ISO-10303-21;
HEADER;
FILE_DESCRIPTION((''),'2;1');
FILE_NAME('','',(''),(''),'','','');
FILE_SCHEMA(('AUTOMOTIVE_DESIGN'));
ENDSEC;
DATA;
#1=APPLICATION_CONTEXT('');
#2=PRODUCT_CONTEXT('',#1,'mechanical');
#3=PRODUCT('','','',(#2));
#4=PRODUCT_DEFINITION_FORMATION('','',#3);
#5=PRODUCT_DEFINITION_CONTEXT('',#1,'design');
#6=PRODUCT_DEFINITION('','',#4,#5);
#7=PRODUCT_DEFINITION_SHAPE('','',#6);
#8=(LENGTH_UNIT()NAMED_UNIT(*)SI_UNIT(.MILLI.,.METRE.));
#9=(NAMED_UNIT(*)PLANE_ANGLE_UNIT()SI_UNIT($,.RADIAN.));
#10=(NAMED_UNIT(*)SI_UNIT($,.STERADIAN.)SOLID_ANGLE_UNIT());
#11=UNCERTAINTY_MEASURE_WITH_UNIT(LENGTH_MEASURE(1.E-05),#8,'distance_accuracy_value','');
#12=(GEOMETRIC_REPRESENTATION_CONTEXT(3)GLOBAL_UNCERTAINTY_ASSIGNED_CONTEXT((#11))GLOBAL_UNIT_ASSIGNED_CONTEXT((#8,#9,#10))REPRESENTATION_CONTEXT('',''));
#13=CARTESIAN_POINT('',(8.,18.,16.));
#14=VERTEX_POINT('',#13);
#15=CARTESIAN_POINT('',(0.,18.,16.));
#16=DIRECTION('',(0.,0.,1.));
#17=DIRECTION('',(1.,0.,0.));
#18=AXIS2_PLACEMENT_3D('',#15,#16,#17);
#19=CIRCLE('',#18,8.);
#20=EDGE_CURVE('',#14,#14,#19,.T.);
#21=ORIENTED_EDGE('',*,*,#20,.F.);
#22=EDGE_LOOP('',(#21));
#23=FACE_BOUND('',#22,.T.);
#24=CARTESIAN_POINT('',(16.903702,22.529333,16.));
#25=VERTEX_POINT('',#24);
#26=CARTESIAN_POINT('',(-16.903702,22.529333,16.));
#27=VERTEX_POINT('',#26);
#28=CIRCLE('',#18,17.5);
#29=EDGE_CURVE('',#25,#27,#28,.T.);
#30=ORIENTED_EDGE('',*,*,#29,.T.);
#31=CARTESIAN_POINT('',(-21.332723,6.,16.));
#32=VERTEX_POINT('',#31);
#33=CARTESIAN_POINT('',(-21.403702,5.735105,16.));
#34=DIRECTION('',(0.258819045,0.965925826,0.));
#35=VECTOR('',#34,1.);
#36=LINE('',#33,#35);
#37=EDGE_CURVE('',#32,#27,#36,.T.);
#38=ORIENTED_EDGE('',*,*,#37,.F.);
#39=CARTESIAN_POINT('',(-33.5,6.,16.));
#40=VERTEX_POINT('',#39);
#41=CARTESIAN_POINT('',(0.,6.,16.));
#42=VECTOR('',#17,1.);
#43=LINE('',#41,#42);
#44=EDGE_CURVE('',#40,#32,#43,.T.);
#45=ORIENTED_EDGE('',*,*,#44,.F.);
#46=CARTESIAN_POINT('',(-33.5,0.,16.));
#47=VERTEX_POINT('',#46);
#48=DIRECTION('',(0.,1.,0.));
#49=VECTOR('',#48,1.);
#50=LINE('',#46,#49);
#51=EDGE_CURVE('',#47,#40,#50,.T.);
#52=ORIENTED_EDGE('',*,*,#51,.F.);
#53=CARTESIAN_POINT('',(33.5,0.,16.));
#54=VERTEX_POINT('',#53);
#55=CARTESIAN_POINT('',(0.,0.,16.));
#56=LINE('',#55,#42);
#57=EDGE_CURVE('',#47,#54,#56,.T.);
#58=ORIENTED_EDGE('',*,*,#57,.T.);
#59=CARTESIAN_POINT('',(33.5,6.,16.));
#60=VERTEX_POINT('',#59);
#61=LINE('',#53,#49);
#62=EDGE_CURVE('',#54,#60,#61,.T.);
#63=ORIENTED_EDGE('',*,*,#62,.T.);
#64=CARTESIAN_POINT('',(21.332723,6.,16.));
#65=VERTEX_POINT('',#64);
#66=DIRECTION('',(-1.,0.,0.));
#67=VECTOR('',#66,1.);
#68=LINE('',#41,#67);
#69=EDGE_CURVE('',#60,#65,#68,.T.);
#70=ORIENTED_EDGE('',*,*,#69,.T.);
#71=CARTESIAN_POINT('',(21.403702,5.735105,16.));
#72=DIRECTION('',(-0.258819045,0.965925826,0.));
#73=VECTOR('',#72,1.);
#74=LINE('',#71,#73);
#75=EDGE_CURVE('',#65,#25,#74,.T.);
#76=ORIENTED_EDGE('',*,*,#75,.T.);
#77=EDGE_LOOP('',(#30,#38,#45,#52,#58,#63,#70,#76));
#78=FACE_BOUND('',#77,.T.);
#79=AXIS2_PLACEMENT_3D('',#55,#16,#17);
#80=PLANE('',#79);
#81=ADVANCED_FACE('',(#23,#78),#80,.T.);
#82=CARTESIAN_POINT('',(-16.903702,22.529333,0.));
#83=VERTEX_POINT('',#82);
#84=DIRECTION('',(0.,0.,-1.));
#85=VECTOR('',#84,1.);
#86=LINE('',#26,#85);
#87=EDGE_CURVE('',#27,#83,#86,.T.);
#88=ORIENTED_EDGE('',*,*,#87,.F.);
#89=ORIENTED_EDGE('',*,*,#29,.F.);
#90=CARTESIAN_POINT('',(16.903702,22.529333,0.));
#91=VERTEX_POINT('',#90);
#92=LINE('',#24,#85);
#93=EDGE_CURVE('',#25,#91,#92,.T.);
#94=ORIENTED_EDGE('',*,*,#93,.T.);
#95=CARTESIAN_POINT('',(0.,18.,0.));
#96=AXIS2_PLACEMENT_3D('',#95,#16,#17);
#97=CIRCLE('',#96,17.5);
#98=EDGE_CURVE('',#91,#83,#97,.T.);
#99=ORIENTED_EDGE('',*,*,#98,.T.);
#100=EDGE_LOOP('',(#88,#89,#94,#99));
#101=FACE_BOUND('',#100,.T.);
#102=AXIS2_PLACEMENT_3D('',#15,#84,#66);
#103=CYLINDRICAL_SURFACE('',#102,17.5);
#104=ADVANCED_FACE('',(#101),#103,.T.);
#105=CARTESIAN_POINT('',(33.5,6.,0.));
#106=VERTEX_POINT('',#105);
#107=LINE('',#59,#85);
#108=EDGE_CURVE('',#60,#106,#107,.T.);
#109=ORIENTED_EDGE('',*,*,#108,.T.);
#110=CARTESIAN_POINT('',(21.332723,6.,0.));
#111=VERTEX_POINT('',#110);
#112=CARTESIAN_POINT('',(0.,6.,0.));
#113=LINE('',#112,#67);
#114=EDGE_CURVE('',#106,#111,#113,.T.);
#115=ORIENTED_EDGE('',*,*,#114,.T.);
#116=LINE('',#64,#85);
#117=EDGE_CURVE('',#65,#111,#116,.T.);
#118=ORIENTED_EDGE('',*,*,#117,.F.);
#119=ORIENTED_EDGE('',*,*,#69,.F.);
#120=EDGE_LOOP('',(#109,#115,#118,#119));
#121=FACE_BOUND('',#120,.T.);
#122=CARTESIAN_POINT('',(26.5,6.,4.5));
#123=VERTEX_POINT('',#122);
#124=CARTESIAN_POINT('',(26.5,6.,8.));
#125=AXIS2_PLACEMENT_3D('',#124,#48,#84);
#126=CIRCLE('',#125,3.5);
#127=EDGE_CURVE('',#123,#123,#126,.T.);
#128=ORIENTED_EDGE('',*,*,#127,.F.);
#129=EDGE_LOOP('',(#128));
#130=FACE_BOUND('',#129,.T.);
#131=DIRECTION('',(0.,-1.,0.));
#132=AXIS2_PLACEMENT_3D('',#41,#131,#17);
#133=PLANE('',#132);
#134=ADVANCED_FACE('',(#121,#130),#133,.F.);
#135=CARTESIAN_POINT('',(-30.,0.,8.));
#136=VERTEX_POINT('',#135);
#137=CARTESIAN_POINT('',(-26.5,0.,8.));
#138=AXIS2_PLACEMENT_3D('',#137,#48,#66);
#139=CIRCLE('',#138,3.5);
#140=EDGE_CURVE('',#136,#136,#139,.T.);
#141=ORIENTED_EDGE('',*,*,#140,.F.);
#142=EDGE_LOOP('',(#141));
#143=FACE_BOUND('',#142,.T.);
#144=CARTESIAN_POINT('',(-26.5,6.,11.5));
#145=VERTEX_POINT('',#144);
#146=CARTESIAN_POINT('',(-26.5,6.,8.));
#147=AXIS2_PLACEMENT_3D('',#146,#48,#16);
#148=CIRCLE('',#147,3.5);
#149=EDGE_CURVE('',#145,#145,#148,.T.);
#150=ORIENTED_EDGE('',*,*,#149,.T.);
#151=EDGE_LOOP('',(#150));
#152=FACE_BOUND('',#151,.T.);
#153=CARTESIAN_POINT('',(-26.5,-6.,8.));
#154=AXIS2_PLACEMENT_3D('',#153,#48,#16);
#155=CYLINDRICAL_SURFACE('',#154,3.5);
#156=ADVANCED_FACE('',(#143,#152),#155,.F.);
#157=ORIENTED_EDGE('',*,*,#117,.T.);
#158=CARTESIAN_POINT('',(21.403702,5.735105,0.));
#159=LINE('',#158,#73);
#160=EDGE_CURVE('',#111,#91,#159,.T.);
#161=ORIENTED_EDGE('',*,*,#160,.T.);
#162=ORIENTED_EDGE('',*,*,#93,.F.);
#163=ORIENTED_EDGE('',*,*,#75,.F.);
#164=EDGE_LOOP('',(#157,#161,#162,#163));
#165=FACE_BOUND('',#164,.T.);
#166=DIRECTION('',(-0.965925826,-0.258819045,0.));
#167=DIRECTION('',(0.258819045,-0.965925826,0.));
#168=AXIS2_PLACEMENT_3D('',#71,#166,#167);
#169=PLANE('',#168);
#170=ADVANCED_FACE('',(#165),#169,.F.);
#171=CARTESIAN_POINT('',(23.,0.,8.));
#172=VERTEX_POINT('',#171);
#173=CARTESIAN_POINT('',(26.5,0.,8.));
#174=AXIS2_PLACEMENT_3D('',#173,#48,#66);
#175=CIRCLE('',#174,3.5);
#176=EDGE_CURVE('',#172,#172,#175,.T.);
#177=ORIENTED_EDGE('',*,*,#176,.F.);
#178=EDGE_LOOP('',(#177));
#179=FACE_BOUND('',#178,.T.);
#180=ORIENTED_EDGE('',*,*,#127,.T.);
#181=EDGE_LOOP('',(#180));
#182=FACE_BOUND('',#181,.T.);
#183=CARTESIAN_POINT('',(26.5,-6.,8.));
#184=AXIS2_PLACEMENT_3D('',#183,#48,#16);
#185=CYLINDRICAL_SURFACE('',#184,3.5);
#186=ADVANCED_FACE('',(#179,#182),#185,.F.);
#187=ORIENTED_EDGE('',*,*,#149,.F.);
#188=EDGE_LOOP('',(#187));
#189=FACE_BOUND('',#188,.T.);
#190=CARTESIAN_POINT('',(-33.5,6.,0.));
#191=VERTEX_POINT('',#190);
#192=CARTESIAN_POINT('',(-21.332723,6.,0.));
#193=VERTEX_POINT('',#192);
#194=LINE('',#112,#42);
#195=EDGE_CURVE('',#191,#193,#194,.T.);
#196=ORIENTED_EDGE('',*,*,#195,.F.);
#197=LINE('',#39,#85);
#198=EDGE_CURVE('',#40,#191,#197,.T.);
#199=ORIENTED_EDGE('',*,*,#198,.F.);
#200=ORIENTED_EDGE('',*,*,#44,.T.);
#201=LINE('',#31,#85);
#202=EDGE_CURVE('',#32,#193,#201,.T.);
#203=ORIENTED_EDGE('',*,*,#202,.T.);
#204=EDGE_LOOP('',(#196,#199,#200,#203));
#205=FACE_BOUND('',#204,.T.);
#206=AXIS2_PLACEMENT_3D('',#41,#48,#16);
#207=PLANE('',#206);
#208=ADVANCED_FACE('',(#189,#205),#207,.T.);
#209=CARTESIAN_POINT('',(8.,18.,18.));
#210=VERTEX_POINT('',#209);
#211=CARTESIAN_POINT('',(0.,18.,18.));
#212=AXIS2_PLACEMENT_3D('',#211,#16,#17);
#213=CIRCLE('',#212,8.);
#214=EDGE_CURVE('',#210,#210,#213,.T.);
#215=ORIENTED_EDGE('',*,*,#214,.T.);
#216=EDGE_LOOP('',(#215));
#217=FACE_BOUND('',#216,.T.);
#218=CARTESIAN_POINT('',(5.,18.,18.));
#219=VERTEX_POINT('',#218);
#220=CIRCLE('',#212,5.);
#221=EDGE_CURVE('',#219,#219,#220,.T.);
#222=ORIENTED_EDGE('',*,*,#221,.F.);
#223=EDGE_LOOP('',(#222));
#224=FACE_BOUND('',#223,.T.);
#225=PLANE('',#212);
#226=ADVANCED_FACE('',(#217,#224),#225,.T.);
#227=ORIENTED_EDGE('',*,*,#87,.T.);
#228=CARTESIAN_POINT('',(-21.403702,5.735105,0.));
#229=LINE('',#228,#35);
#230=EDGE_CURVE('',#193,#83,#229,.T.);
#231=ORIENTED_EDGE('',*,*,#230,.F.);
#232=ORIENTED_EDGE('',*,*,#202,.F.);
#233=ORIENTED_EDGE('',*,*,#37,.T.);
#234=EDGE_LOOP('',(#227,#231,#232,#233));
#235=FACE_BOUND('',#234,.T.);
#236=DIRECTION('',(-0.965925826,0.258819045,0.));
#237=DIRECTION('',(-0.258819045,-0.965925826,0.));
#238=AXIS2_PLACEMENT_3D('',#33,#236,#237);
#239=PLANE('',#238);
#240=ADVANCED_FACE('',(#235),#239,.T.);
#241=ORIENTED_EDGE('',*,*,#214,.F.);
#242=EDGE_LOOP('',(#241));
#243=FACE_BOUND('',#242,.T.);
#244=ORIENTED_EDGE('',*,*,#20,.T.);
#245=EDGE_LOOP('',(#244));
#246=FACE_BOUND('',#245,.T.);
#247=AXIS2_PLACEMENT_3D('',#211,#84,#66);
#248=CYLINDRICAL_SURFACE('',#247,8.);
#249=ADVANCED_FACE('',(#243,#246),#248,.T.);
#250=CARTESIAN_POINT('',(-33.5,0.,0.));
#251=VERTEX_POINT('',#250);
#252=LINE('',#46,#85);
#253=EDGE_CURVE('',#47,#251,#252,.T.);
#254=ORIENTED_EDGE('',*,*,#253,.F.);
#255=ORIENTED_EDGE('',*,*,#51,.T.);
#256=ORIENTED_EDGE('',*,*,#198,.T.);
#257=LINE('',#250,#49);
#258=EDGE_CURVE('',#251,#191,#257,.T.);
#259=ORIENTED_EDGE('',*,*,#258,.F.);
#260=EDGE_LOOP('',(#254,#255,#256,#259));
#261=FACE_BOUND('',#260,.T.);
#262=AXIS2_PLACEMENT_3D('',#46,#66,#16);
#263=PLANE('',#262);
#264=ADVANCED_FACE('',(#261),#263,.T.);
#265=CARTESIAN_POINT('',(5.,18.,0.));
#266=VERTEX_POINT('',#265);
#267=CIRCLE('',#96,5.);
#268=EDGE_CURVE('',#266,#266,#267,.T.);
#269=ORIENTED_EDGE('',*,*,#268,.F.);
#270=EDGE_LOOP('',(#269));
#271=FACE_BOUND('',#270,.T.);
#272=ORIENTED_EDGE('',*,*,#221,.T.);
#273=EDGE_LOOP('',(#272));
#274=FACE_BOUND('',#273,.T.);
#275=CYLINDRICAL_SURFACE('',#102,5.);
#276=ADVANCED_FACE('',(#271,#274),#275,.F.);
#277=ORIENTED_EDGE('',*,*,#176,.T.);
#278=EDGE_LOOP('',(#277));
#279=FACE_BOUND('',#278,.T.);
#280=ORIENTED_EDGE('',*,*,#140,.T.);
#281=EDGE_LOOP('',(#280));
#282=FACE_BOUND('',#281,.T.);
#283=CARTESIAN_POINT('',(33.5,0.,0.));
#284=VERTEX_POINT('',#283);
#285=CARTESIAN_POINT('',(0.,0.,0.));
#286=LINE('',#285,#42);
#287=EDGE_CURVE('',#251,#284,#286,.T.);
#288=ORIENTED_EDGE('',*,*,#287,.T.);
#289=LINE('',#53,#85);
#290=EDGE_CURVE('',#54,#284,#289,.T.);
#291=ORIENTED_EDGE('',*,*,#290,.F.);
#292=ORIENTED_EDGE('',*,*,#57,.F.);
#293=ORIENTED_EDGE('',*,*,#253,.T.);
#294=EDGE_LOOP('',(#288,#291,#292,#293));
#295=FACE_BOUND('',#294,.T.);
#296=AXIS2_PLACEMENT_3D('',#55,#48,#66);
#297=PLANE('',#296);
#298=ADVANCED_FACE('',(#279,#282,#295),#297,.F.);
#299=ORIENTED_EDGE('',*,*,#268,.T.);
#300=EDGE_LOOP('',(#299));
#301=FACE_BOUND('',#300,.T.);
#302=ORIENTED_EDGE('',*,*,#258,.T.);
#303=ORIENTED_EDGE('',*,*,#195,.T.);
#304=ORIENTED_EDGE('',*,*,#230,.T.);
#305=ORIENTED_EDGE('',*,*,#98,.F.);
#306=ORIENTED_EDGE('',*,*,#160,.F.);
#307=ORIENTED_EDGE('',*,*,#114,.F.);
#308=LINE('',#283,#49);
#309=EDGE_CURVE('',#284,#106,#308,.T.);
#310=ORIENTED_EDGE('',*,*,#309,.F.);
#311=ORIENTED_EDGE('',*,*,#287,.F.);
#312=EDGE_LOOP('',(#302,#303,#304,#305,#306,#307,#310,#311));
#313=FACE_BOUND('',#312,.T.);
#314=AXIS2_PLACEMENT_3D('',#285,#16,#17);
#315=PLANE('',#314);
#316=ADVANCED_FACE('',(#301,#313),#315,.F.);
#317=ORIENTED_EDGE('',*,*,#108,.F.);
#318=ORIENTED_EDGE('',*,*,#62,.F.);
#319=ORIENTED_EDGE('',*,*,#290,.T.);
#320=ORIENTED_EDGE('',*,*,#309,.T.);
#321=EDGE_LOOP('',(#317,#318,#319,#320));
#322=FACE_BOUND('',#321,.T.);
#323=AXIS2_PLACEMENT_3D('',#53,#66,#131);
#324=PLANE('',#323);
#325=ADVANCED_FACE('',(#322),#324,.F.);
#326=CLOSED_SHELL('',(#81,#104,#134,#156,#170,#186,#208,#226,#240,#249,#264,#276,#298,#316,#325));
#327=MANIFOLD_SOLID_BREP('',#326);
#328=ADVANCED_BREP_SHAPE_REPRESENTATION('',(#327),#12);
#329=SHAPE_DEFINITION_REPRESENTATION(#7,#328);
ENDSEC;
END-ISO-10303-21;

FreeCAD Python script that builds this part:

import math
import FreeCAD as App
import Part
import Sketcher
Q = App.Units.Quantity

doc = App.newDocument("Part")
params = doc.addObject("Spreadsheet::Sheet", "Params")
for row, (alias, value) in enumerate([
    ("sketch1_diameter", "10 mm"),
    ("sketch1_radius", "17.5 mm"),
    ("sketch1_width", "67 mm"),
    ("sketch1_height", "6 mm"),
    ("pad1_length", "16 mm"),
    ("sketch2_diameter", "16 mm"),
    ("sketch2_diameter2", "10 mm"),
    ("pad2_length", "2 mm"),
    ("sketch3_diameter", "7 mm"),
    ("pocket1_length", "12 mm"),
], start=1):
    params.set(f"A{row}", alias)
    params.set(f"B{row}", "=" + value)
    params.setAlias(f"B{row}", alias)

body = doc.addObject("PartDesign::Body", "Body")

sketch1 = doc.addObject("Sketcher::SketchObject", "Sketch")
body.addObject(sketch1)
sketch1.AttachmentSupport = (doc.XY_Plane, [""])
sketch1.MapMode = "FlatFace"
sketch1.addGeometry(Part.LineSegment(App.Vector(-33.5, 6, 0), App.Vector(-33.5, 0, 0)), False)
sketch1.addGeometry(Part.LineSegment(App.Vector(-33.5, 0, 0), App.Vector(33.5, 0, 0)), False)
sketch1.addGeometry(Part.LineSegment(App.Vector(33.5, 0, 0), App.Vector(33.5, 6, 0)), False)
sketch1.addGeometry(Part.LineSegment(App.Vector(33.5, 6, 0), App.Vector(21.332723, 6, 0)), False)
sketch1.addGeometry(Part.LineSegment(App.Vector(21.332723, 6, 0), App.Vector(16.903702, 22.529333, 0)), False)
sketch1.addGeometry(Part.ArcOfCircle(Part.Circle(App.Vector(0, 18, 0), App.Vector(0, 0, 1), 17.5), math.radians(15), math.radians(165)), False)
sketch1.addGeometry(Part.LineSegment(App.Vector(-16.903702, 22.529333, 0), App.Vector(-21.332723, 6, 0)), False)
sketch1.addGeometry(Part.LineSegment(App.Vector(-21.332723, 6, 0), App.Vector(-33.5, 6, 0)), False)
sketch1.addGeometry(Part.Circle(App.Vector(0, 18, 0), App.Vector(0, 0, 1), 5), False)
sketch1.addConstraint(Sketcher.Constraint("Coincident", 0, 2, 1, 1))
sketch1.addConstraint(Sketcher.Constraint("Coincident", 1, 2, 2, 1))
sketch1.addConstraint(Sketcher.Constraint("Coincident", 2, 2, 3, 1))
sketch1.addConstraint(Sketcher.Constraint("Coincident", 3, 2, 4, 1))
sketch1.addConstraint(Sketcher.Constraint("Tangent", 4, 2, 5, 1))
sketch1.addConstraint(Sketcher.Constraint("Tangent", 5, 2, 6, 1))
sketch1.addConstraint(Sketcher.Constraint("Coincident", 6, 2, 7, 1))
sketch1.addConstraint(Sketcher.Constraint("Coincident", 7, 2, 0, 1))
sketch1.addConstraint(Sketcher.Constraint("Vertical", 0))
sketch1.addConstraint(Sketcher.Constraint("Horizontal", 1))
sketch1.addConstraint(Sketcher.Constraint("Vertical", 2))
sketch1.addConstraint(Sketcher.Constraint("Horizontal", 3))
sketch1.addConstraint(Sketcher.Constraint("Horizontal", 7))
sketch1.addConstraint(Sketcher.Constraint("Coincident", 8, 3, 5, 3))
sketch1.addConstraint(Sketcher.Constraint("Symmetric", 0, 2, 1, 2, -1, 1))
sketch1.addConstraint(Sketcher.Constraint("Symmetric", 4, 2, 5, 2, -2))
sketch1.addConstraint(Sketcher.Constraint("Horizontal", 3, 2, 6, 2))
sketch1.addConstraint(Sketcher.Constraint("Diameter", 8, Q("10 mm")))
sketch1.addConstraint(Sketcher.Constraint("Radius", 5, Q("17.5 mm")))
sketch1.addConstraint(Sketcher.Constraint("DistanceX", 1, 1, 1, 2, Q("67 mm")))
sketch1.addConstraint(Sketcher.Constraint("DistanceY", 0, 2, 0, 1, Q("6 mm")))
sketch1.addConstraint(Sketcher.Constraint("Angle", 4, Q("105 deg")))
sketch1.addConstraint(Sketcher.Constraint("DistanceY", -1, 1, 5, 3, Q("18 mm")))
sketch1.setExpression("Constraints[17]", "Params.sketch1_diameter")
sketch1.setExpression("Constraints[18]", "Params.sketch1_radius")
sketch1.setExpression("Constraints[19]", "Params.sketch1_width")
sketch1.setExpression("Constraints[20]", "Params.sketch1_height")
pad1 = doc.addObject("PartDesign::Pad", "Pad")
body.addObject(pad1)
pad1.Profile = sketch1
pad1.setExpression("Length", "Params.pad1_length")

sketch2 = doc.addObject("Sketcher::SketchObject", "Sketch001")
body.addObject(sketch2)
sketch2.AttachmentSupport = (doc.XY_Plane, [""])
sketch2.MapMode = "FlatFace"
sketch2.AttachmentOffset = App.Placement(App.Vector(0, 0, 16), App.Rotation())
sketch2.addGeometry(Part.Circle(App.Vector(0, 18, 0), App.Vector(0, 0, 1), 8), False)
sketch2.addGeometry(Part.Circle(App.Vector(0, 18, 0), App.Vector(0, 0, 1), 5), False)
sketch2.addConstraint(Sketcher.Constraint("Coincident", 1, 3, 0, 3))
sketch2.addConstraint(Sketcher.Constraint("PointOnObject", 0, 3, -2))
sketch2.addConstraint(Sketcher.Constraint("Diameter", 0, Q("16 mm")))
sketch2.addConstraint(Sketcher.Constraint("Diameter", 1, Q("10 mm")))
sketch2.addConstraint(Sketcher.Constraint("DistanceY", -1, 1, 0, 3, Q("18 mm")))
sketch2.setExpression("Constraints[2]", "Params.sketch2_diameter")
sketch2.setExpression("Constraints[3]", "Params.sketch2_diameter2")
pad2 = doc.addObject("PartDesign::Pad", "Pad001")
body.addObject(pad2)
pad2.Profile = sketch2
pad2.setExpression("Length", "Params.pad2_length")

sketch3 = doc.addObject("Sketcher::SketchObject", "Sketch002")
body.addObject(sketch3)
sketch3.AttachmentSupport = (doc.XZ_Plane, [""])
sketch3.MapMode = "FlatFace"
sketch3.AttachmentOffset = App.Placement(App.Vector(0, 0, -6), App.Rotation())
sketch3.addGeometry(Part.Circle(App.Vector(-26.5, 8, 0), App.Vector(0, 0, 1), 3.5), False)
sketch3.addGeometry(Part.Circle(App.Vector(26.5, 8, 0), App.Vector(0, 0, 1), 3.5), False)
sketch3.addConstraint(Sketcher.Constraint("Equal", 0, 1))
sketch3.addConstraint(Sketcher.Constraint("Symmetric", 0, 3, 1, 3, -2))
sketch3.addConstraint(Sketcher.Constraint("Diameter", 0, Q("7 mm")))
sketch3.addConstraint(Sketcher.Constraint("DistanceY", -1, 1, 0, 3, Q("8 mm")))
sketch3.addConstraint(Sketcher.Constraint("DistanceX", 0, 3, 1, 3, Q("53 mm")))
sketch3.setExpression("Constraints[2]", "Params.sketch3_diameter")
pocket1 = doc.addObject("PartDesign::Pocket", "Pocket")
body.addObject(pocket1)
pocket1.Profile = sketch3
pocket1.setExpression("Length", "Params.pocket1_length")
pocket1.Reversed = True

doc.recompute()
